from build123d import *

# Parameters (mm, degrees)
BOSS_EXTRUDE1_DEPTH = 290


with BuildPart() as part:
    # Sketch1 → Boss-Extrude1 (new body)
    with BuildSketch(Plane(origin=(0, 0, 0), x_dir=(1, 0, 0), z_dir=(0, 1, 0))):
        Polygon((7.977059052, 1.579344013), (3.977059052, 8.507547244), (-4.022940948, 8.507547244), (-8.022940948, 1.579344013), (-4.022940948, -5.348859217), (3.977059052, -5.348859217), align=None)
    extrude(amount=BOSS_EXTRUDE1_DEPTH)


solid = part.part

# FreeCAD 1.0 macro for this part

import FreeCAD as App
import Part
import Sketcher
from FreeCAD import Vector
Q = App.Units.Quantity

doc = App.newDocument("Part")
body = doc.addObject("PartDesign::Body", "Body")

sketch1 = body.newObject("Sketcher::SketchObject", "Sketch")
sketch1.AttachmentSupport = (doc.getObject("XZ_Plane"), [""])
sketch1.MapMode = "FlatFace"
sketch1.addGeometry([
    Part.LineSegment(Vector(8, -2, 0), Vector(4, -9, 0)),
    Part.LineSegment(Vector(4, -9, 0), Vector(-4, -9, 0)),
    Part.LineSegment(Vector(-4, -9, 0), Vector(-8, -2, 0)),
    Part.LineSegment(Vector(-8, -2, 0), Vector(-4, 5, 0)),
    Part.LineSegment(Vector(-4, 5, 0), Vector(4, 5, 0)),
    Part.LineSegment(Vector(4, 5, 0), Vector(8, -2, 0)),
], False)
sketch1.addConstraint([
    Sketcher.Constraint("Coincident", 0, 2, 1, 1),
    Sketcher.Constraint("Coincident", 1, 2, 2, 1),
    Sketcher.Constraint("Coincident", 2, 2, 3, 1),
    Sketcher.Constraint("Coincident", 3, 2, 4, 1),
    Sketcher.Constraint("Coincident", 4, 2, 5, 1),
    Sketcher.Constraint("Coincident", 5, 2, 0, 1),
    Sketcher.Constraint("Horizontal", 1),
    Sketcher.Constraint("Horizontal", 4),
    Sketcher.Constraint("Parallel", 0, 3),
    Sketcher.Constraint("Parallel", 2, 5),
    Sketcher.Constraint("Horizontal", 2, 2, 5, 2),
    Sketcher.Constraint("Vertical", 1, 2, 3, 2),
    Sketcher.Constraint("Vertical", 0, 2, 4, 2),
    Sketcher.Constraint("DistanceX", 1, 2, 1, 1, Q("8 mm")),
    Sketcher.Constraint("Angle", 0, Q("-120 deg")),
    Sketcher.Constraint("Distance", 0, Q("8 mm")),
    Sketcher.Constraint("DistanceX", -1, 1, 0, 2, Q("3.977059 mm")),
    Sketcher.Constraint("DistanceY", -1, 1, 3, 2, Q("5.348859 mm")),
])
pad1 = body.newObject("PartDesign::Pad", "Pad")
pad1.Profile = sketch1
pad1.Length = 290
pad1.Reversed = True

doc.recompute()
